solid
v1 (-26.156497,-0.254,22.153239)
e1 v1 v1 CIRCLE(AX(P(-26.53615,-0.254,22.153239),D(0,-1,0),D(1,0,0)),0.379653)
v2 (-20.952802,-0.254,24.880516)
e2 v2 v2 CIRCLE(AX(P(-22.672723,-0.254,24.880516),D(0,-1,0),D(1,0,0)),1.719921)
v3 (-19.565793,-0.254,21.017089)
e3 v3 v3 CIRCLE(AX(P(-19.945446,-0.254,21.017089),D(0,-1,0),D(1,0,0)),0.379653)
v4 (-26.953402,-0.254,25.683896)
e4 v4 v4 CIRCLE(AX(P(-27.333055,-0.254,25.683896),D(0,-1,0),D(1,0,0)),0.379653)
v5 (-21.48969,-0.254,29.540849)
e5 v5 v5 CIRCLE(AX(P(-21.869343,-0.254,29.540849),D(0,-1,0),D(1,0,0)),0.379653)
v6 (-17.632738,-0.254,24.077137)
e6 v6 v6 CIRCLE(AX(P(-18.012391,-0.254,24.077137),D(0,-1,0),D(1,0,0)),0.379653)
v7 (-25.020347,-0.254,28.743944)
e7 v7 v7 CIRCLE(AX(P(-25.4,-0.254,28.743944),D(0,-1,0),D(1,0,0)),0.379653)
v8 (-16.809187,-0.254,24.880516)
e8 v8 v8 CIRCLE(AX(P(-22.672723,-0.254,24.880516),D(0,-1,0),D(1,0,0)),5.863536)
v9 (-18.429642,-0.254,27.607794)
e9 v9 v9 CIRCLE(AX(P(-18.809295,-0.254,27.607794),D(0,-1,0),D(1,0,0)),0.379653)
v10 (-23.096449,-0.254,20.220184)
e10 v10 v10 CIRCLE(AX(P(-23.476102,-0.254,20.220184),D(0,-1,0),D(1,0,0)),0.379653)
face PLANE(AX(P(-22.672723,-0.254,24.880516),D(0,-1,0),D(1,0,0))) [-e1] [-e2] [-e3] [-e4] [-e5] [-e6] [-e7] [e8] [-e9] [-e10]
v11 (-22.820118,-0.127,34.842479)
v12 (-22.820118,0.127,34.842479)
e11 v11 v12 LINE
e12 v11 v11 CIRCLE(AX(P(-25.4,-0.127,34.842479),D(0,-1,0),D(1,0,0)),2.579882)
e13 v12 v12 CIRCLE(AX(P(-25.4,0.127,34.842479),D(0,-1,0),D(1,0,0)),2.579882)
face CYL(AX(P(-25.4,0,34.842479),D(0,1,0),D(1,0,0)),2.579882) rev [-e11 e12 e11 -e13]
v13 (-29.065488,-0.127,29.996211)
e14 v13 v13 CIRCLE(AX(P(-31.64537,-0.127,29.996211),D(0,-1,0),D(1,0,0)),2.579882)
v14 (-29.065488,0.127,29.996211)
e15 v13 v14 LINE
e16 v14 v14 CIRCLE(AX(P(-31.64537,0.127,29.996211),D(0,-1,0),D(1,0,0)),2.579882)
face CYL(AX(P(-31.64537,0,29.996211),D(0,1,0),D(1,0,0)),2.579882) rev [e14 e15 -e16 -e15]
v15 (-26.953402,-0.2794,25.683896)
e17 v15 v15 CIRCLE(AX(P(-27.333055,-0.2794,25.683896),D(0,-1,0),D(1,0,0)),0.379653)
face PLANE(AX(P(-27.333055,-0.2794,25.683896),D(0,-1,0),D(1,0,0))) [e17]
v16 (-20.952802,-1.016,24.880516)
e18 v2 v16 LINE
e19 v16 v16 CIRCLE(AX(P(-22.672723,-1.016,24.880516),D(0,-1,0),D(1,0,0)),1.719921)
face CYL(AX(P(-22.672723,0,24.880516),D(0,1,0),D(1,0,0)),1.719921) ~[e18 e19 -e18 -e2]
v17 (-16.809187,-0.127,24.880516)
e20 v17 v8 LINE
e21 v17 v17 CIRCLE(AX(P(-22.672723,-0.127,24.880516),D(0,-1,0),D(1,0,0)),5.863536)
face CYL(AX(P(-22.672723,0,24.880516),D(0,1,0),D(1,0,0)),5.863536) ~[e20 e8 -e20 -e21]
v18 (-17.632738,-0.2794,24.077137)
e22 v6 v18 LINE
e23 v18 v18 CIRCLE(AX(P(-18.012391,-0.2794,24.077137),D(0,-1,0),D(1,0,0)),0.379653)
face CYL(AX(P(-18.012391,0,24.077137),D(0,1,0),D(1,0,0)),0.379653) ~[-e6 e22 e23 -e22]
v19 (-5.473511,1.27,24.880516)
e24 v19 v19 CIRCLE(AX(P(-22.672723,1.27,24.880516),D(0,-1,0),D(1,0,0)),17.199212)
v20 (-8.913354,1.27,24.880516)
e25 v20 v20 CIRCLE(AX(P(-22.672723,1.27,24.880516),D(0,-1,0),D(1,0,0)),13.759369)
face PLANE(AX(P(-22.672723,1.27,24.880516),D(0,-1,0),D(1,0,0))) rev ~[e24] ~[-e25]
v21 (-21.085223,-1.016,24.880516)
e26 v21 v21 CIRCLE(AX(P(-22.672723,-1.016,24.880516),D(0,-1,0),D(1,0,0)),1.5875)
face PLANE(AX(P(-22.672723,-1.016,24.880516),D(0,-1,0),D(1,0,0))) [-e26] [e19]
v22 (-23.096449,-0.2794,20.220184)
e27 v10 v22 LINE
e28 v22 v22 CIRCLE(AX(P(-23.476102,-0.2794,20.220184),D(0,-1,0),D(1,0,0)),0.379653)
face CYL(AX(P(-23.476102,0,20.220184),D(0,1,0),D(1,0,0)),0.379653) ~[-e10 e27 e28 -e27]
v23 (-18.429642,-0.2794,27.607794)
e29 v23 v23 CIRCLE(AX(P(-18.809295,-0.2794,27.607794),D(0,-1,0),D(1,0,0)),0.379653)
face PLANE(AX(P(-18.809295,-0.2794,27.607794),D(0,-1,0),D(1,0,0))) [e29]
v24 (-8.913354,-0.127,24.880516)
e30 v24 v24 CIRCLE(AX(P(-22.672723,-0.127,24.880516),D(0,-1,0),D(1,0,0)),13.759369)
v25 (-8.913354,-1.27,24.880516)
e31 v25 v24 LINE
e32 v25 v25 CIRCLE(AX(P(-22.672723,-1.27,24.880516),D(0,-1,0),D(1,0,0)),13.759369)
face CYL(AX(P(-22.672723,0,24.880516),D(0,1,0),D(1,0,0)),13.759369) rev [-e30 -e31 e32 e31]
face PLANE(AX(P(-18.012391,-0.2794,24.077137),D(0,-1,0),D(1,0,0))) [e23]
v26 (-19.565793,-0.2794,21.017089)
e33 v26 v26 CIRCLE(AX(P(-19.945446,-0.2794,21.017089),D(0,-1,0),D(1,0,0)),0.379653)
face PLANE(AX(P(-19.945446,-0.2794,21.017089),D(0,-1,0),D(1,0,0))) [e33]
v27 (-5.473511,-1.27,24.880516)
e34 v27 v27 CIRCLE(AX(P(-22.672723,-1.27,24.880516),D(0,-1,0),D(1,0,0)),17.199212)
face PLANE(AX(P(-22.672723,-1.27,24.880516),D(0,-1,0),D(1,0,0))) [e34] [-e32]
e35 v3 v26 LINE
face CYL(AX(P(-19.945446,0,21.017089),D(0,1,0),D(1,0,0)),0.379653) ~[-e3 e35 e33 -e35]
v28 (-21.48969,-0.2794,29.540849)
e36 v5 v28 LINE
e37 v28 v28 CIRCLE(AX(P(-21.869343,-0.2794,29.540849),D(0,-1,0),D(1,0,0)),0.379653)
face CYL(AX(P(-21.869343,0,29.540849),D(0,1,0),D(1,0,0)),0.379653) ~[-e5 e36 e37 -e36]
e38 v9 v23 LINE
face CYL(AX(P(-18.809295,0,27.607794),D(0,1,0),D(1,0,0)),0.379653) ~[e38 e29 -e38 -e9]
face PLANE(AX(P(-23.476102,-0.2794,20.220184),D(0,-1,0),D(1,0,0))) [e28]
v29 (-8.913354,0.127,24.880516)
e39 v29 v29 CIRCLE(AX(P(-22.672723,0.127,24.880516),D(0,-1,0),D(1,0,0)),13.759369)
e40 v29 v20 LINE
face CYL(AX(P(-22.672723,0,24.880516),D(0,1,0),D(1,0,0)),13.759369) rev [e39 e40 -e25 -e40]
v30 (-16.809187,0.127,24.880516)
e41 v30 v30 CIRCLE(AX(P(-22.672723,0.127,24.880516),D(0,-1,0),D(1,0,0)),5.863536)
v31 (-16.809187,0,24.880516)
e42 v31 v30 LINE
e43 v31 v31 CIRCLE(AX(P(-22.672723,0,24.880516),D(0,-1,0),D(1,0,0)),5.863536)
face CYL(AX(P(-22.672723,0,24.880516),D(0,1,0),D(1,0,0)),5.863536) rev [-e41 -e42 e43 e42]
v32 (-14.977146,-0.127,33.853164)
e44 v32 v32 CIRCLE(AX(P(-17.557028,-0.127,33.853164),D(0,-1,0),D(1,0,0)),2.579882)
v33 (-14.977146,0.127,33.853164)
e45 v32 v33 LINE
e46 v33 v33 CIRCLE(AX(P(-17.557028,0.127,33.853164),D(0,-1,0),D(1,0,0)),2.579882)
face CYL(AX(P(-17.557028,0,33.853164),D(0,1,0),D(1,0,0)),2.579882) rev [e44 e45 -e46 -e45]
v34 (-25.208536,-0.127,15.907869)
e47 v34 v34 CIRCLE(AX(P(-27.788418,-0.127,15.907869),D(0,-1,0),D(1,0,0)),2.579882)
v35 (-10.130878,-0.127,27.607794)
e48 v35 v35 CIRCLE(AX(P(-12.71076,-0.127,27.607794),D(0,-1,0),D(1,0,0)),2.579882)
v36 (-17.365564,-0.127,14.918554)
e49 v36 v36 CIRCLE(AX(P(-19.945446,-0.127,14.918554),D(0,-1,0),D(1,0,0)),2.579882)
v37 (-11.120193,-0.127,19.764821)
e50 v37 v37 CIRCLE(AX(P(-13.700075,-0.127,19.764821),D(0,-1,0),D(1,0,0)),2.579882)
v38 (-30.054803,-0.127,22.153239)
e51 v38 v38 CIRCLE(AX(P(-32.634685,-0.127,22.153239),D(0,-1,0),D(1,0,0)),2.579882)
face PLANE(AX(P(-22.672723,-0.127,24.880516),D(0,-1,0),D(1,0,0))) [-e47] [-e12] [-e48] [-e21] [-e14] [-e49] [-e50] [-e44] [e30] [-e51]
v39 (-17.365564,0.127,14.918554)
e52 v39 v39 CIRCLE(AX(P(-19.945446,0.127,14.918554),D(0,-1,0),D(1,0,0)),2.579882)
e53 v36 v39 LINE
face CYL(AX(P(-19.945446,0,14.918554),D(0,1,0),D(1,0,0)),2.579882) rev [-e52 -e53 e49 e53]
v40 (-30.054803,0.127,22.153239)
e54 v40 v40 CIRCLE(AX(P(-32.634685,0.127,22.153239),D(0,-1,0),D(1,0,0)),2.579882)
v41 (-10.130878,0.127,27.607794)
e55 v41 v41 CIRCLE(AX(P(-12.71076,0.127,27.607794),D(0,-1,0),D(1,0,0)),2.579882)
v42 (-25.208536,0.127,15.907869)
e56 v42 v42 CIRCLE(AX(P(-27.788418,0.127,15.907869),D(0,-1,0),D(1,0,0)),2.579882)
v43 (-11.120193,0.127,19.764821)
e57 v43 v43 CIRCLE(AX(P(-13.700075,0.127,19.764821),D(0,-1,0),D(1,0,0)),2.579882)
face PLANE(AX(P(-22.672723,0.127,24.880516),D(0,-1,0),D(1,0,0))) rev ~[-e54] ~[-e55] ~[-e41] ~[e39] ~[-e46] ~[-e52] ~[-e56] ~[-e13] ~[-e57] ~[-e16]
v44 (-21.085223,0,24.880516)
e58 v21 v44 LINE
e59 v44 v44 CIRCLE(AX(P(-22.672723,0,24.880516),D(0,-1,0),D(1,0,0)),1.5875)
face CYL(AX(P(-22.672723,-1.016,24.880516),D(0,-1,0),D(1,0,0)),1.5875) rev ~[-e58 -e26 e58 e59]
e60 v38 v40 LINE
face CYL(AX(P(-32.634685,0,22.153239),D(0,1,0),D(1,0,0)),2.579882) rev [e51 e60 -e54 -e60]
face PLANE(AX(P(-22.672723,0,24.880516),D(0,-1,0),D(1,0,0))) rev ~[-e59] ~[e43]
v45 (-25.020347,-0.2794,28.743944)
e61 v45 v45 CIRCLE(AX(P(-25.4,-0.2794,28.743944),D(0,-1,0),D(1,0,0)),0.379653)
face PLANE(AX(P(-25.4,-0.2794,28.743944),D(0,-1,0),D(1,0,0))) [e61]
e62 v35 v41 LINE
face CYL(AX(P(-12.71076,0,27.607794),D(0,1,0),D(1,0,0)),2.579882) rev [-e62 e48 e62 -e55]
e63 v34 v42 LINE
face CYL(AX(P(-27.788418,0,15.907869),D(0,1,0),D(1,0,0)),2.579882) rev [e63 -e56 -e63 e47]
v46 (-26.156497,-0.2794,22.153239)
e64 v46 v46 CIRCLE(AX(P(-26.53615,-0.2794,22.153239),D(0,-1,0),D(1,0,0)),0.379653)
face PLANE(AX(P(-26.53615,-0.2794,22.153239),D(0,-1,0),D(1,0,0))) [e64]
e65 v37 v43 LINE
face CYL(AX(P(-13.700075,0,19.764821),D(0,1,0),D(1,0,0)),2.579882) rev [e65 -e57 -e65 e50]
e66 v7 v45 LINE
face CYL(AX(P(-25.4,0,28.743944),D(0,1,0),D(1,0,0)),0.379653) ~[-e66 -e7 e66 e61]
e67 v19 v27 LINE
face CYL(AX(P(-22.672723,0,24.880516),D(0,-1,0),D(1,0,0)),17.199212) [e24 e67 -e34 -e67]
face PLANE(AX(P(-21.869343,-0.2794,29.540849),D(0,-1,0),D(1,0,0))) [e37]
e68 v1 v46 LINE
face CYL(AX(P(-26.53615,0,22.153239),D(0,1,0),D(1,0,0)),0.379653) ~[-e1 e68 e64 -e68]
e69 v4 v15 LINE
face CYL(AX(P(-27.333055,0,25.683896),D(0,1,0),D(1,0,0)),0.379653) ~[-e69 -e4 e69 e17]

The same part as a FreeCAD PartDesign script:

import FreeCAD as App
import Part
import Sketcher
from FreeCAD import Vector
Q = App.Units.Quantity

doc = App.newDocument("Part")
body = doc.addObject("PartDesign::Body", "Body")

# Sketch on XZ plane
sketch1 = doc.addObject("Sketcher::SketchObject", "Sketch")
body.addObject(sketch1)
sketch1.AttachmentSupport = (doc.XZ_Plane, [""])
sketch1.MapMode = "FlatFace"
sketch1.addGeometry(Part.Circle(Vector(-22.7, 24.9, 0), Vector(0, 0, 1), 1.7), False)
sketch1.addConstraint([
    Sketcher.Constraint("Diameter", 0, 3.439842),
    Sketcher.Constraint("DistanceX", 0, 3, -1, 1, 22.672723),
    Sketcher.Constraint("DistanceY", -1, 1, 0, 3, 24.880516),
])
pad1 = doc.addObject("PartDesign::Pad", "Pad")
body.addObject(pad1)
pad1.Profile = sketch1
pad1.Length = Q("0.04 in")

# Sketch on XZ plane
sketch2 = doc.addObject("Sketcher::SketchObject", "Sketch001")
body.addObject(sketch2)
sketch2.AttachmentSupport = (doc.XZ_Plane, [""])
sketch2.MapMode = "FlatFace"
sketch2.addGeometry([
    Part.Circle(Vector(-22.67, 24.88, 0), Vector(0, 0, 1), 5.86),  # 0
    Part.Circle(Vector(-26.54, 22.15, 0), Vector(0, 0, 1), 0.38),  # 1
    Part.Circle(Vector(-23.48, 20.22, 0), Vector(0, 0, 1), 0.38),  # 2
    Part.Circle(Vector(-22.67, 24.88, 0), Vector(0, 0, 1), 1.72),  # 3
    Part.Circle(Vector(-19.95, 21.02, 0), Vector(0, 0, 1), 0.38),  # 4
    Part.Circle(Vector(-18.01, 24.08, 0), Vector(0, 0, 1), 0.38),  # 5
    Part.Circle(Vector(-27.33, 25.68, 0), Vector(0, 0, 1), 0.38),  # 6
    Part.Circle(Vector(-25.4, 28.74, 0), Vector(0, 0, 1), 0.38),  # 7
    Part.Circle(Vector(-21.87, 29.54, 0), Vector(0, 0, 1), 0.38),  # 8
    Part.Circle(Vector(-18.81, 27.61, 0), Vector(0, 0, 1), 0.38),  # 9
], False)
sketch2.addConstraint([
    Sketcher.Constraint("Coincident", 3, 3, 0, 3),
    Sketcher.Constraint("Equal", 1, 2),
    Sketcher.Constraint("Equal", 2, 4),
    Sketcher.Constraint("Equal", 4, 5),
    Sketcher.Constraint("Equal", 5, 6),
    Sketcher.Constraint("Equal", 6, 7),
    Sketcher.Constraint("Equal", 7, 8),
    Sketcher.Constraint("Equal", 8, 9),
    Sketcher.Constraint("DistanceX", 7, 3, -1, 1, Q("1 in")),
    Sketcher.Constraint("Diameter", 0, 11.727072),
    Sketcher.Constraint("Diameter", 1, 0.759306),
    Sketcher.Constraint("Diameter", 3, 3.439842),
    Sketcher.Constraint("DistanceY", 1, 3, 5, 3, 1.923898),
    Sketcher.Constraint("DistanceX", 1, 3, -1, 1, 26.53615),
    Sketcher.Constraint("DistanceY", -1, 1, 1, 3, 22.153239),
    Sketcher.Constraint("DistanceY", -1, 1, 4, 3, 21.017089),
    Sketcher.Constraint("DistanceX", 5, 3, -1, 1, 18.012391),
    Sketcher.Constraint("DistanceY", -1, 1, 8, 3, 29.540849),
    Sketcher.Constraint("DistanceX", 2, 3, 0, 3, 0.803379),
    Sketcher.Constraint("DistanceY", 5, 3, 0, 3, 0.803379),
    Sketcher.Constraint("DistanceX", 2, 3, 5, 3, 5.463711),
    Sketcher.Constraint("DistanceY", 0, 3, 6, 3, 0.80338),
    Sketcher.Constraint("DistanceX", 6, 3, 4, 3, 7.387609),
    Sketcher.Constraint("DistanceX", 0, 3, 8, 3, 0.80338),
    Sketcher.Constraint("DistanceX", 8, 3, 9, 3, 3.060048),
    Sketcher.Constraint("DistanceY", 9, 3, 7, 3, 1.13615),
    Sketcher.Constraint("DistanceY", -1, 1, 2, 3, 20.220184),
    Sketcher.Constraint("DistanceX", 4, 3, -1, 1, 19.945446),
    Sketcher.Constraint("DistanceY", -1, 1, 7, 3, 28.743944),
])
pad2 = doc.addObject("PartDesign::Pad", "Pad001")
body.addObject(pad2)
pad2.Profile = sketch2
pad2.Length = Q("0.01 in")

# Sketch on XZ plane
sketch3 = doc.addObject("Sketcher::SketchObject", "Sketch002")
body.addObject(sketch3)
sketch3.AttachmentSupport = (doc.XZ_Plane, [""])
sketch3.MapMode = "FlatFace"
sketch3.addGeometry([
    Part.Circle(Vector(-23.48, 20.22, 0), Vector(0, 0, 1), 0.38),  # 0
    Part.Circle(Vector(-19.95, 21.02, 0), Vector(0, 0, 1), 0.38),  # 1
    Part.Circle(Vector(-18.01, 24.08, 0), Vector(0, 0, 1), 0.38),  # 2
    Part.Circle(Vector(-18.81, 27.61, 0), Vector(0, 0, 1), 0.38),  # 3
    Part.Circle(Vector(-21.87, 29.54, 0), Vector(0, 0, 1), 0.38),  # 4
    Part.Circle(Vector(-25.4, 28.74, 0), Vector(0, 0, 1), 0.38),  # 5
    Part.Circle(Vector(-27.33, 25.68, 0), Vector(0, 0, 1), 0.38),  # 6
    Part.Circle(Vector(-26.54, 22.15, 0), Vector(0, 0, 1), 0.38),  # 7
], False)
sketch3.addConstraint([
    Sketcher.Constraint("Equal", 0, 1),
    Sketcher.Constraint("Equal", 1, 2),
    Sketcher.Constraint("Equal", 2, 3),
    Sketcher.Constraint("Equal", 3, 4),
    Sketcher.Constraint("Equal", 4, 5),
    Sketcher.Constraint("Equal", 5, 6),
    Sketcher.Constraint("Equal", 6, 7),
    Sketcher.Constraint("DistanceX", 5, 3, -1, 1, Q("1 in")),
    Sketcher.Constraint("Diameter", 0, 0.759306),
    Sketcher.Constraint("DistanceY", 7, 3, 2, 3, 1.923898),
    Sketcher.Constraint("DistanceY", -1, 1, 1, 3, 21.017089),
    Sketcher.Constraint("DistanceX", 2, 3, -1, 1, 18.012391),
    Sketcher.Constraint("DistanceY", -1, 1, 4, 3, 29.540849),
    Sketcher.Constraint("DistanceX", 7, 3, -1, 1, 26.53615),
    Sketcher.Constraint("DistanceY", -1, 1, 7, 3, 22.153239),
    Sketcher.Constraint("DistanceX", 0, 3, 2, 3, 5.463711),
    Sketcher.Constraint("DistanceX", 1, 3, 3, 3, 1.136151),
    Sketcher.Constraint("DistanceY", 0, 3, 3, 3, 7.38761),
    Sketcher.Constraint("DistanceX", 4, 3, 3, 3, 3.060048),
    Sketcher.Constraint("DistanceX", 4, 3, 2, 3, 3.856952),
    Sketcher.Constraint("DistanceY", 3, 3, 5, 3, 1.13615),
    Sketcher.Constraint("DistanceX", 6, 3, 1, 3, 7.387609),
    Sketcher.Constraint("DistanceY", -1, 1, 0, 3, 20.220184),
    Sketcher.Constraint("DistanceY", -1, 1, 6, 3, 25.683896),
])
pad3 = doc.addObject("PartDesign::Pad", "Pad002")
body.addObject(pad3)
pad3.Profile = sketch3
pad3.Length = Q("0.011 in")
body2 = doc.addObject("PartDesign::Body", "Body001")

# Sketch on XZ plane
sketch4 = doc.addObject("Sketcher::SketchObject", "Sketch003")
body2.addObject(sketch4)
sketch4.AttachmentSupport = (doc.getObject("XZ_Plane001"), [""])
sketch4.MapMode = "FlatFace"
sketch4.addGeometry([
    Part.Circle(Vector(-23, 25, 0), Vector(0, 0, 1), 17),
    Part.Circle(Vector(-23, 25, 0), Vector(0, 0, 1), 14),
], False)
sketch4.addConstraint([
    Sketcher.Constraint("Coincident", 1, 3, 0, 3),
    Sketcher.Constraint("Diameter", 0, 34.398424),
    Sketcher.Constraint("Diameter", 1, 27.518738),
    Sketcher.Constraint("DistanceX", 0, 3, -1, 1, 22.672723),
    Sketcher.Constraint("DistanceY", -1, 1, 0, 3, 24.880516),
])
pad4 = doc.addObject("PartDesign::Pad", "Pad003")
body2.addObject(pad4)
pad4.Profile = sketch4
pad4.Length = Q("0.1 in")
pad4.Midplane = True
body.AllowCompound = True
doc.recompute()

boolean = doc.addObject("PartDesign::Boolean", "Boolean")
body.addObject(boolean)
boolean.Type = "Fuse"
boolean.addObjects([body2])

# Sketch on XZ plane
sketch5 = doc.addObject("Sketcher::SketchObject", "Sketch004")
body.addObject(sketch5)
sketch5.AttachmentSupport = (doc.XZ_Plane, [""])
sketch5.MapMode = "FlatFace"
sketch5.addGeometry([
    Part.Circle(Vector(-22.7, 24.9, 0), Vector(0, 0, 1), 13.8),  # 0
    Part.Circle(Vector(-27.8, 15.9, 0), Vector(0, 0, 1), 2.6),  # 1
    Part.Circle(Vector(-32.6, 22.2, 0), Vector(0, 0, 1), 2.6),  # 2
    Part.Circle(Vector(-22.7, 24.9, 0), Vector(0, 0, 1), 5.9),  # 3
    Part.Circle(Vector(-19.9, 14.9, 0), Vector(0, 0, 1), 2.6),  # 4
    Part.Circle(Vector(-13.7, 19.8, 0), Vector(0, 0, 1), 2.6),  # 5
    Part.Circle(Vector(-31.6, 30, 0), Vector(0, 0, 1), 2.6),  # 6
    Part.Circle(Vector(-25.4, 34.8, 0), Vector(0, 0, 1), 2.6),  # 7
    Part.Circle(Vector(-12.7, 27.6, 0), Vector(0, 0, 1), 2.6),  # 8
    Part.Circle(Vector(-17.6, 33.9, 0), Vector(0, 0, 1), 2.6),  # 9
], False)
sketch5.addConstraint([
    Sketcher.Constraint("Coincident", 3, 3, 0, 3),
    Sketcher.Constraint("Equal", 1, 2),
    Sketcher.Constraint("Equal", 2, 4),
    Sketcher.Constraint("Equal", 4, 5),
    Sketcher.Constraint("Equal", 5, 6),
    Sketcher.Constraint("Equal", 6, 7),
    Sketcher.Constraint("Equal", 7, 8),
    Sketcher.Constraint("Equal", 8, 9),
    Sketcher.Constraint("DistanceX", 7, 3, -1, 1, Q("1 in")),
    Sketcher.Constraint("Diameter", 0, 27.518738),
    Sketcher.Constraint("Diameter", 1, 5.159764),
    Sketcher.Constraint("Diameter", 3, 11.727072),
    Sketcher.Constraint("DistanceX", 1, 3, -1, 1, 27.788418),
    Sketcher.Constraint("DistanceY", -1, 1, 1, 3, 15.907869),
    Sketcher.Constraint("DistanceY", -1, 1, 2, 3, 22.153239),
    Sketcher.Constraint("DistanceY", -1, 1, 5, 3, 19.764821),
    Sketcher.Constraint("DistanceX", 6, 3, -1, 1, 31.64537),
    Sketcher.Constraint("DistanceY", -1, 1, 6, 3, 29.996211),
    Sketcher.Constraint("DistanceY", -1, 1, 7, 3, 34.842479),
    Sketcher.Constraint("DistanceX", 8, 3, -1, 1, 12.71076),
    Sketcher.Constraint("DistanceX", 2, 3, 0, 3, 9.961962),
    Sketcher.Constraint("DistanceX", 1, 3, 4, 3, 7.842972),
    Sketcher.Constraint("DistanceX", 2, 3, 4, 3, 12.689239),
    Sketcher.Constraint("DistanceX", 4, 3, 5, 3, 6.245371),
    Sketcher.Constraint("DistanceY", 4, 3, 8, 3, 12.68924),
    Sketcher.Constraint("DistanceX", 7, 3, 9, 3, 7.842972),
    Sketcher.Constraint("DistanceY", 8, 3, 9, 3, 6.24537),
    Sketcher.Constraint("DistanceY", -1, 1, 0, 3, 24.880516),
    Sketcher.Constraint("DistanceY", -1, 1, 4, 3, 14.918554),
])
pad5 = doc.addObject("PartDesign::Pad", "Pad004")
body.addObject(pad5)
pad5.Profile = sketch5
pad5.Length = Q("0.01 in")
pad5.Midplane = True

# Sketch on XZ plane
sketch6 = doc.addObject("Sketcher::SketchObject", "Sketch005")
body.addObject(sketch6)
sketch6.AttachmentSupport = (doc.XZ_Plane, [""])
sketch6.MapMode = "FlatFace"
sketch6.AttachmentOffset = App.Placement(Vector(0, 0, 0.04 * 25.4), App.Rotation())
sketch6.addGeometry(Part.Circle(Vector(-22.7, 24.9, 0), Vector(0, 0, 1), 1.6), False)
sketch6.addConstraint([
    Sketcher.Constraint("Diameter", 0, Q("0.125 in")),
    Sketcher.Constraint("DistanceX", 0, 3, -1, 1, 22.672723),
    Sketcher.Constraint("DistanceY", -1, 1, 0, 3, 24.880516),
])
pocket1 = doc.addObject("PartDesign::Pocket", "Pocket")
body.addObject(pocket1)
pocket1.Profile = sketch6
pocket1.Length = Q("1 in")

doc.recompute()
